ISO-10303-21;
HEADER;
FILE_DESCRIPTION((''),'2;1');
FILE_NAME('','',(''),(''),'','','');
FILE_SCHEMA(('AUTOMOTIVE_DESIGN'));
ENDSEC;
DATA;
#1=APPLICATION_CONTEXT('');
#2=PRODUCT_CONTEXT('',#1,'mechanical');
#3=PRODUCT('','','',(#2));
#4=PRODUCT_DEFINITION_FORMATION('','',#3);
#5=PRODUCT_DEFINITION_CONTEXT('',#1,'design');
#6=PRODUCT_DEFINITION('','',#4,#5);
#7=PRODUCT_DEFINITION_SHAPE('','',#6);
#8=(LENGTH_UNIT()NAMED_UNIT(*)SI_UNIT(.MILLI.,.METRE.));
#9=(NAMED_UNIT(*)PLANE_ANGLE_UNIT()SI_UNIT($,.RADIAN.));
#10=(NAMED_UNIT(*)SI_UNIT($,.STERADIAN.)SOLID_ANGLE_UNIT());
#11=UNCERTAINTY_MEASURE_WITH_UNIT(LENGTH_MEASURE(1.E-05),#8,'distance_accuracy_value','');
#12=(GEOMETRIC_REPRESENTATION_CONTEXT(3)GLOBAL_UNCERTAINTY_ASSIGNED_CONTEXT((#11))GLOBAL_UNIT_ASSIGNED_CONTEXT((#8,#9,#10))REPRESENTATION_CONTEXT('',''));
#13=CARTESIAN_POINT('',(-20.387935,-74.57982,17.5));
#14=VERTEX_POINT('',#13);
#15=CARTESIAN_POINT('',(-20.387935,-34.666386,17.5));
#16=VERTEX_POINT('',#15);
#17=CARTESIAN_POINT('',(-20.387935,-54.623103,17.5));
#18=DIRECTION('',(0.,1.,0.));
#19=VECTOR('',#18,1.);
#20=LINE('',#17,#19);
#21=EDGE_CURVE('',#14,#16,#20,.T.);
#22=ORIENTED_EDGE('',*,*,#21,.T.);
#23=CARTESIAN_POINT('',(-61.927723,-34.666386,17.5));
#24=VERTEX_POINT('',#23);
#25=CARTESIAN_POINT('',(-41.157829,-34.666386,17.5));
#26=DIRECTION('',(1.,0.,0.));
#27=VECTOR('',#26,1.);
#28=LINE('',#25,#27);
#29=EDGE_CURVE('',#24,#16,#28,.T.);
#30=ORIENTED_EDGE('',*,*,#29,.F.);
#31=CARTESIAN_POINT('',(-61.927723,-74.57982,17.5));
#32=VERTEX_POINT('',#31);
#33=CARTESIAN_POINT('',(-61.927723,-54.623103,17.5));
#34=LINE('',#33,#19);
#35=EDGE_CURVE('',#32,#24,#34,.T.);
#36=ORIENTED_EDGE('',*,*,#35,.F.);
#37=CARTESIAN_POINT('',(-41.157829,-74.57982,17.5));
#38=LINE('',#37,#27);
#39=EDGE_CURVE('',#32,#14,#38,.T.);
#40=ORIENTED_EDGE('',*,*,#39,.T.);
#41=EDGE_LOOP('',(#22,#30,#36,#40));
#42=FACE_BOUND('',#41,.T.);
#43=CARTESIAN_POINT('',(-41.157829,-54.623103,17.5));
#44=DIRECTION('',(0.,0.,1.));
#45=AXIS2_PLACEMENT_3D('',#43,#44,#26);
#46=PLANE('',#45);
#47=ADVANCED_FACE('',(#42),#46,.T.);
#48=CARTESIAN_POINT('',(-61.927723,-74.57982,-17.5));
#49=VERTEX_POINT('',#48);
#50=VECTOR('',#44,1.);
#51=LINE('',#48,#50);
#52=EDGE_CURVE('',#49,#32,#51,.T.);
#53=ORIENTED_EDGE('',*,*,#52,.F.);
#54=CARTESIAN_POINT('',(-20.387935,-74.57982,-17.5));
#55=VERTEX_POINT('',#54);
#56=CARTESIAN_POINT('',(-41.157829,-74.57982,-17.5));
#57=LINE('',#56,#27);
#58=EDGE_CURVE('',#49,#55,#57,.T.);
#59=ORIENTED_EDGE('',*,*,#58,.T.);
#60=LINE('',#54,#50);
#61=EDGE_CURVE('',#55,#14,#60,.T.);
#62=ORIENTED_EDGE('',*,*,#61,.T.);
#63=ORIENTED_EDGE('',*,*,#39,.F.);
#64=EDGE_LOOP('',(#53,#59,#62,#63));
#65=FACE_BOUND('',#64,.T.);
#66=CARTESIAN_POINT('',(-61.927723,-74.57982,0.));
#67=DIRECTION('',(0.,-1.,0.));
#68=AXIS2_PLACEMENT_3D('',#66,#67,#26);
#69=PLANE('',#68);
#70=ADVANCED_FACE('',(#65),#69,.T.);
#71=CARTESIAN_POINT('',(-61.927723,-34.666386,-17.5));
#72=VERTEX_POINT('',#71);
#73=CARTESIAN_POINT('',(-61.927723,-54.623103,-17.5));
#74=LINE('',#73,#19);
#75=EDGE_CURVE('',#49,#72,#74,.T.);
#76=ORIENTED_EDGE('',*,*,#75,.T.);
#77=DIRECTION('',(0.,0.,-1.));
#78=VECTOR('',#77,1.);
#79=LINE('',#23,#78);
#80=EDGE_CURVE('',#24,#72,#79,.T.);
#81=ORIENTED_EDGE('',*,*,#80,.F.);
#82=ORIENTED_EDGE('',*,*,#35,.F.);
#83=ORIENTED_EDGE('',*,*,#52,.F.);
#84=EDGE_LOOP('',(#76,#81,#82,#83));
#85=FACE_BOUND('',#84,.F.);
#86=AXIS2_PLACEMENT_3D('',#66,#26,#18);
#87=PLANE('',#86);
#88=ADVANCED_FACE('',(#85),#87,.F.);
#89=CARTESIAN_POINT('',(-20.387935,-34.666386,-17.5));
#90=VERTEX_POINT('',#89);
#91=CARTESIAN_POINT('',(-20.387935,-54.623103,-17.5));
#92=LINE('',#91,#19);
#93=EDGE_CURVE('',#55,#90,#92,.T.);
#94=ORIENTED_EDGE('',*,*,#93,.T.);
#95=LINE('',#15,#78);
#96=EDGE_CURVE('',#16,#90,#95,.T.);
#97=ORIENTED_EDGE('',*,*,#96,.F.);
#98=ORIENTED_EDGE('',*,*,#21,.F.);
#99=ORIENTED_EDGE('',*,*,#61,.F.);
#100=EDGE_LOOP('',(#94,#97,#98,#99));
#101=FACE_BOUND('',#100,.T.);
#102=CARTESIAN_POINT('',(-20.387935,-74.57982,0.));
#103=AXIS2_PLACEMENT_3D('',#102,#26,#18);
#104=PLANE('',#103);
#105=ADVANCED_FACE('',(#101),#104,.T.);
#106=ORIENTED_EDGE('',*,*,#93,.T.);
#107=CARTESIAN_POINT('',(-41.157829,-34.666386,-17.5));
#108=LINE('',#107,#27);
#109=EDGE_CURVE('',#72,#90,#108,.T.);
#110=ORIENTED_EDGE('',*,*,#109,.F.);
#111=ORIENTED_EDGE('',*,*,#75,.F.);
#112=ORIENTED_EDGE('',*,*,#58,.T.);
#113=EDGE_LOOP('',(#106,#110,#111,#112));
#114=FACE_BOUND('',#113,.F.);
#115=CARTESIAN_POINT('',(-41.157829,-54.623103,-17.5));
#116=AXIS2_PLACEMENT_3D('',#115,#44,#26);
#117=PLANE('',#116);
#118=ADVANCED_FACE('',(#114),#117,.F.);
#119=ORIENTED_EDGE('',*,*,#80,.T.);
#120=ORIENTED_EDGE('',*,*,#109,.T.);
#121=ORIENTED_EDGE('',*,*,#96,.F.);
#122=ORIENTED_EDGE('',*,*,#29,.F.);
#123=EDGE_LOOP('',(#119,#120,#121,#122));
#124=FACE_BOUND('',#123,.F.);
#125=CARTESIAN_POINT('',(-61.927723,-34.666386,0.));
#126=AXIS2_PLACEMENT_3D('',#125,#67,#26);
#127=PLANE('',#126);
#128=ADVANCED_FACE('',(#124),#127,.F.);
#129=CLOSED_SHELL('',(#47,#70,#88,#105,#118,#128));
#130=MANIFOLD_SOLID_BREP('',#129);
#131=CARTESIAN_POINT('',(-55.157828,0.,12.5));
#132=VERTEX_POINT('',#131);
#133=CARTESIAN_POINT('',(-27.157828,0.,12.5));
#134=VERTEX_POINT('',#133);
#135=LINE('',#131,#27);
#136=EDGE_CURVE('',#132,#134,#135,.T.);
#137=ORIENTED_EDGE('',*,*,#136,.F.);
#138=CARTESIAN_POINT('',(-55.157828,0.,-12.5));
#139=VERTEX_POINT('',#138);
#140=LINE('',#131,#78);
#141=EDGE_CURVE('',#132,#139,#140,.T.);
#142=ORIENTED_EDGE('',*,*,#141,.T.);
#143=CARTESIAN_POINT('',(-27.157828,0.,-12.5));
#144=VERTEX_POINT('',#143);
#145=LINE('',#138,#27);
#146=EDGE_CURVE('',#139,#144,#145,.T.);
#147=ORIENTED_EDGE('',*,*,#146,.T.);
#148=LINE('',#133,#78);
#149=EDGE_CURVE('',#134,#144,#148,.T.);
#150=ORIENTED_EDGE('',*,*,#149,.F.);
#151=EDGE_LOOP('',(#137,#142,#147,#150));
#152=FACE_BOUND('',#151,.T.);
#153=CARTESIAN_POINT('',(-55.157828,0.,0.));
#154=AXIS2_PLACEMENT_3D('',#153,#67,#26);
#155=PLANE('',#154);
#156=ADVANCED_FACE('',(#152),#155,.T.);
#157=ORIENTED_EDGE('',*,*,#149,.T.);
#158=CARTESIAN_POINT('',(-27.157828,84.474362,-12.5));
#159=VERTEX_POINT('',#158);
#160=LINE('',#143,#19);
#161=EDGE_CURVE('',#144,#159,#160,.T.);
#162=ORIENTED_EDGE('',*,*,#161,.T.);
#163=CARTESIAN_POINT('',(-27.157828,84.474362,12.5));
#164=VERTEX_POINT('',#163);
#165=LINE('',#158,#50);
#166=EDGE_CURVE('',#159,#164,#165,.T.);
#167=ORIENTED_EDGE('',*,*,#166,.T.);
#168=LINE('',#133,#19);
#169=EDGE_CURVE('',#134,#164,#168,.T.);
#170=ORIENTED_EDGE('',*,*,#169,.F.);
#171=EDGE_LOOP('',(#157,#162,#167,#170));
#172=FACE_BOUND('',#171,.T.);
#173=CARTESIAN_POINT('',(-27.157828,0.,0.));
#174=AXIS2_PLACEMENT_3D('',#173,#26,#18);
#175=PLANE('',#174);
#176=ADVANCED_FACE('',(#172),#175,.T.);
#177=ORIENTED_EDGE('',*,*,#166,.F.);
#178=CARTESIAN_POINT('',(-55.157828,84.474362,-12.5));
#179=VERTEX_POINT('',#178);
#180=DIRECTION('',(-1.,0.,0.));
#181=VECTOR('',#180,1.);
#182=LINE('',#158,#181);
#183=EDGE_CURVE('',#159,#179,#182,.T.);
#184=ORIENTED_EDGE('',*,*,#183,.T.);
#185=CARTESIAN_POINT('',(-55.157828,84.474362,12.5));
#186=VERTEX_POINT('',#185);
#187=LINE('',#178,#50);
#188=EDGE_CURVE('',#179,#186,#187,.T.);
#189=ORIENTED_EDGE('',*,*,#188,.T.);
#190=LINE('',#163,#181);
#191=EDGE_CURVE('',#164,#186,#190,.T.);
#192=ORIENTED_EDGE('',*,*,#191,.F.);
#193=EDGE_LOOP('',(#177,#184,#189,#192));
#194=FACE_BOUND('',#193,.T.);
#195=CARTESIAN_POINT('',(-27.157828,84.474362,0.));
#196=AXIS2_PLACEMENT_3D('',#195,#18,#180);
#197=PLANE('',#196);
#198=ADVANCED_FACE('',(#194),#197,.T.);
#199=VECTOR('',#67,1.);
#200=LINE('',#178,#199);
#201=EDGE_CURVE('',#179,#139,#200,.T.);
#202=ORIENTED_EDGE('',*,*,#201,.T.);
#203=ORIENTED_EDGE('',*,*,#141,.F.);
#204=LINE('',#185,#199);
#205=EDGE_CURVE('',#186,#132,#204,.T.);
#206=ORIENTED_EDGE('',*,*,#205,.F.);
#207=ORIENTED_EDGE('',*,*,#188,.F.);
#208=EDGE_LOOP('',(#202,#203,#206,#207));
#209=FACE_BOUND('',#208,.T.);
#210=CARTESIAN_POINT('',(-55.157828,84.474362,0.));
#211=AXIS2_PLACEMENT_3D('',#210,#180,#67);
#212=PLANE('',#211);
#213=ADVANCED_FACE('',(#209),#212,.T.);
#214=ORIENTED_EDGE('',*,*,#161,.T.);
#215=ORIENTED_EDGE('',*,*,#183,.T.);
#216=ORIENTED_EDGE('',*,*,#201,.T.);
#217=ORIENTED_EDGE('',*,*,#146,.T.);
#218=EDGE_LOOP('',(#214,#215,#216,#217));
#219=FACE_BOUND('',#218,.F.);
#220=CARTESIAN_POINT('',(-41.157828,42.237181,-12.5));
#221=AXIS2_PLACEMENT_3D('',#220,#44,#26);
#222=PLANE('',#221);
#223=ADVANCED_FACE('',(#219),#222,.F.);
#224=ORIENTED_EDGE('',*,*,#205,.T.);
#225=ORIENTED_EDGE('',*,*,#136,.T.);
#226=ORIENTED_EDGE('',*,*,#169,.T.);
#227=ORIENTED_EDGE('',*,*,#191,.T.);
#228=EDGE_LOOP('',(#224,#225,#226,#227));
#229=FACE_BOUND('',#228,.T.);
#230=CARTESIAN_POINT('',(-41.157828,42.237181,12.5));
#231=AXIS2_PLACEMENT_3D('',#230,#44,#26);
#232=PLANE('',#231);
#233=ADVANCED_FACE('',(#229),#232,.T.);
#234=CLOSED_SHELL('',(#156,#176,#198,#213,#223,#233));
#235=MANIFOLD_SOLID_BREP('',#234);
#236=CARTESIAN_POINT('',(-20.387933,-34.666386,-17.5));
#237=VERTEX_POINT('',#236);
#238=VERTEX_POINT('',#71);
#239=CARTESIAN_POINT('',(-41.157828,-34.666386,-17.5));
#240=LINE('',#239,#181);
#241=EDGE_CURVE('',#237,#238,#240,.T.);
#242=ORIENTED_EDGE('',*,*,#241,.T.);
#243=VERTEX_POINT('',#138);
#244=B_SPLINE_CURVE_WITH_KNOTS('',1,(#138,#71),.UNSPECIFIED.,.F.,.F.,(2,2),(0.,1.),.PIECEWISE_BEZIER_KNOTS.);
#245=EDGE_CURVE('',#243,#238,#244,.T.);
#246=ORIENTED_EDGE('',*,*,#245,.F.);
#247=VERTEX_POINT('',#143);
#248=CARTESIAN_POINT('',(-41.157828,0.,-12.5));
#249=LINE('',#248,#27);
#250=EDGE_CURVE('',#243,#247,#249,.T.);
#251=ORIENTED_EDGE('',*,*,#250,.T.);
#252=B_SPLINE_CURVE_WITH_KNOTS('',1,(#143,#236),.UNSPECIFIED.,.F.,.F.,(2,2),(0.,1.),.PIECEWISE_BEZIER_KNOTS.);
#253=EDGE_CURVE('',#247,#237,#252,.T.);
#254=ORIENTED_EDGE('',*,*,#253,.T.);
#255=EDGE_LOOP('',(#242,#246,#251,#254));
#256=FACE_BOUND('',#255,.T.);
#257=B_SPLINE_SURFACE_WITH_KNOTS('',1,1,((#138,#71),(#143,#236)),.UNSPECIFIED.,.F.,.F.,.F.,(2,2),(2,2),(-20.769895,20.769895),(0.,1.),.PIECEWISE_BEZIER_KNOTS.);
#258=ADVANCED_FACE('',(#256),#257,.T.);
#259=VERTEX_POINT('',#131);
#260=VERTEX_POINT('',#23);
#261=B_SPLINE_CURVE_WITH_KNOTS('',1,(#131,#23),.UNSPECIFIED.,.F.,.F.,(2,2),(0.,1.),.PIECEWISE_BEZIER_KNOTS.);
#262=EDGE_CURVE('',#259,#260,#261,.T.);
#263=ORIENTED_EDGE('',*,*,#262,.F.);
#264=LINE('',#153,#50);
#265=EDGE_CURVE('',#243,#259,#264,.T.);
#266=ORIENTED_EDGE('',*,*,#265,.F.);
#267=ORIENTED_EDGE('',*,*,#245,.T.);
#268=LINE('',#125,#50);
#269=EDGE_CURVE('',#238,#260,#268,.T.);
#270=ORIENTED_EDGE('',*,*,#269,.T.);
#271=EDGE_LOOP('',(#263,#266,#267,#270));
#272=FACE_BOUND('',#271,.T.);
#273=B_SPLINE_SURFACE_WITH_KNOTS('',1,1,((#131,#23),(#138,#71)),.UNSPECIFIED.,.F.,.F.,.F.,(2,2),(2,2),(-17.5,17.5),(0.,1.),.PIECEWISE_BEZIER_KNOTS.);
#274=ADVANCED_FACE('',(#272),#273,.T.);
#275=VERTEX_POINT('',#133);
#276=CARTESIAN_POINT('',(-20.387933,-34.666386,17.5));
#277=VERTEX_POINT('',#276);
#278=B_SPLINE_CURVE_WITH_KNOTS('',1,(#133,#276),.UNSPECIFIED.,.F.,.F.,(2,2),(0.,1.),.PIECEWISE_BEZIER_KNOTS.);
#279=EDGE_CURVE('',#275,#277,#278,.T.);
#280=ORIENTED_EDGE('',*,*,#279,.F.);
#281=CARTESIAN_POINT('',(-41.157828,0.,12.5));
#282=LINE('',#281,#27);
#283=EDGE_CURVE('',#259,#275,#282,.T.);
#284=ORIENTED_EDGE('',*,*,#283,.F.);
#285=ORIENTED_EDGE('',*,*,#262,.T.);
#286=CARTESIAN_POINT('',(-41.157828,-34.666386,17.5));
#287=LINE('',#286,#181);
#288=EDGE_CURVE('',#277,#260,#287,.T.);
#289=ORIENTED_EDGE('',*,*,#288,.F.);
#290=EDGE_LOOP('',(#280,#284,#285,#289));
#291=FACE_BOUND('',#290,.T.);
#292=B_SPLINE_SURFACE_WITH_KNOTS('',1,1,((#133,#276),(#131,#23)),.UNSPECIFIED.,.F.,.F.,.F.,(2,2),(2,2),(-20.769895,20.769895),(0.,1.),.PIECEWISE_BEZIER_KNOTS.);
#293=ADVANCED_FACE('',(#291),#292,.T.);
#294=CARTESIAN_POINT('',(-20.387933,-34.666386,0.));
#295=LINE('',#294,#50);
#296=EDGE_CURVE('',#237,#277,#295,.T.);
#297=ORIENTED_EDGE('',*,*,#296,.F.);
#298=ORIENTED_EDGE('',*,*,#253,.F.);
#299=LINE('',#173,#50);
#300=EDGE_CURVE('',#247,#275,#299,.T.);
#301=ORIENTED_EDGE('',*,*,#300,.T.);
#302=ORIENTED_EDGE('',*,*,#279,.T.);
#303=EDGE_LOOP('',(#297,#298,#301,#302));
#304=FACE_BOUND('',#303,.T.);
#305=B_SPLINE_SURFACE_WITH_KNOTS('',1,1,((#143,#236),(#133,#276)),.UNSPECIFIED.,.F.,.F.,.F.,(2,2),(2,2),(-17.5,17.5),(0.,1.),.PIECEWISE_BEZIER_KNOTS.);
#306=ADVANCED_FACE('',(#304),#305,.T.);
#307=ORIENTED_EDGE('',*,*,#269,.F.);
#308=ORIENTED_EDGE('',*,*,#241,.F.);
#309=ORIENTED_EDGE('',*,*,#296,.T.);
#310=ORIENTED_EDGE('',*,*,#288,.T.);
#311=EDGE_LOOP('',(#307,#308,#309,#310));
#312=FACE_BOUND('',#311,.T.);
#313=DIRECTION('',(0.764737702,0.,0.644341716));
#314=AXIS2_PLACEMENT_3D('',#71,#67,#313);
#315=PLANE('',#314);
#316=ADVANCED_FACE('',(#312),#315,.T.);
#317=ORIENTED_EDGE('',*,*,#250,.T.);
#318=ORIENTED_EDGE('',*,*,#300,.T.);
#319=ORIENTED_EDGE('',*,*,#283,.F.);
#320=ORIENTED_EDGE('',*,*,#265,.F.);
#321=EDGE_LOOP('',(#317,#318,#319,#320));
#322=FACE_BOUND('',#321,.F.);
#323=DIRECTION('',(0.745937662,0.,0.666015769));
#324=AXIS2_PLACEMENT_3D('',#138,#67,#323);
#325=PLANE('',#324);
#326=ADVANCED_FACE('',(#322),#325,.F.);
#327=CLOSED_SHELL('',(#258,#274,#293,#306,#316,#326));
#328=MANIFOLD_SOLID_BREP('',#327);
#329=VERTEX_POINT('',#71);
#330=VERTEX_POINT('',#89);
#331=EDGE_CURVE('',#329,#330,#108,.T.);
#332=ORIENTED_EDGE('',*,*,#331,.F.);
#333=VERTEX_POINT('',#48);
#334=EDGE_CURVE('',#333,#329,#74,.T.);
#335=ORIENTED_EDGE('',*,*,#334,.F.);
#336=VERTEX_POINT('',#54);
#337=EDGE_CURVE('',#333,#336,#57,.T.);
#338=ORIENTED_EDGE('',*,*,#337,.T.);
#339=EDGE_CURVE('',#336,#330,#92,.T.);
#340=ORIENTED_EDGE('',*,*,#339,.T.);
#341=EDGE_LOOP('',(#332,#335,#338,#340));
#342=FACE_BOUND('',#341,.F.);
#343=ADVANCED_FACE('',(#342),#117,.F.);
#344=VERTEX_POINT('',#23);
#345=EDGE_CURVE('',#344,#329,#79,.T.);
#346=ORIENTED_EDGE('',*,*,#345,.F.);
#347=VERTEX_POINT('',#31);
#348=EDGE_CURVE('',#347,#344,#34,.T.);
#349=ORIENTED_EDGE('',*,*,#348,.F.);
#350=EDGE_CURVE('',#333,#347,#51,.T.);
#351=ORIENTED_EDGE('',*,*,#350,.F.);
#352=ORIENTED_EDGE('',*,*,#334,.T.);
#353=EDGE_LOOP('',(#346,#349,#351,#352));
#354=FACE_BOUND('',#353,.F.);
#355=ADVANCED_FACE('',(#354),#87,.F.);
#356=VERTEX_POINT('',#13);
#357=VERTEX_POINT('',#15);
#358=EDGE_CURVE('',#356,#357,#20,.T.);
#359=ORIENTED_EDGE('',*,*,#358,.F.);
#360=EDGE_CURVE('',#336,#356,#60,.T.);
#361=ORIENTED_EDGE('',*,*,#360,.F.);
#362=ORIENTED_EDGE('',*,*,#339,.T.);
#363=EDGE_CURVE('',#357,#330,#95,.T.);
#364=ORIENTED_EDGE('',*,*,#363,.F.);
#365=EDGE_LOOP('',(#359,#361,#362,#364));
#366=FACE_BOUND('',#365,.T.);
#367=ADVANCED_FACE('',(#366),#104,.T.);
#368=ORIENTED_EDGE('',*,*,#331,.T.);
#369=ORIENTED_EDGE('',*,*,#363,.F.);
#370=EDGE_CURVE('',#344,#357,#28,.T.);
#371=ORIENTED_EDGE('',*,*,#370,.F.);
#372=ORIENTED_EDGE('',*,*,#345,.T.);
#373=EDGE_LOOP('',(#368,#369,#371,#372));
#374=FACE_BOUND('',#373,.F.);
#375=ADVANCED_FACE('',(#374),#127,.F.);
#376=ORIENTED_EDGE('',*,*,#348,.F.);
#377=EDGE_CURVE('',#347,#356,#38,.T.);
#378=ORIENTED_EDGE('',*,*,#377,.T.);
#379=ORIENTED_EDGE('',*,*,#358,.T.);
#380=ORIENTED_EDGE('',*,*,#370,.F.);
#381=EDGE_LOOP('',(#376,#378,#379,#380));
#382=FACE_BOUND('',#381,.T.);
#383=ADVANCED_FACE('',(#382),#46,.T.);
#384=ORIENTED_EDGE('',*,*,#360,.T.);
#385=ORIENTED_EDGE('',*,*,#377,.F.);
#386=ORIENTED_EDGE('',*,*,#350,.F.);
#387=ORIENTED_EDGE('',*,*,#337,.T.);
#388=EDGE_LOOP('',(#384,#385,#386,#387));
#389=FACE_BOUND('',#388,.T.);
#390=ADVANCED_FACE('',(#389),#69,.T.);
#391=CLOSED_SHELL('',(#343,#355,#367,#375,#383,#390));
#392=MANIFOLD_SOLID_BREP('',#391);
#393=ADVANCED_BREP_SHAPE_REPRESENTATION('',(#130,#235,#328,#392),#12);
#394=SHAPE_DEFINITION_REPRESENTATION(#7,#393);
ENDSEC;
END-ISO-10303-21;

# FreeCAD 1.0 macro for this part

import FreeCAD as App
import Part
import Sketcher

V = App.Vector

doc = App.newDocument("Part")
body = doc.addObject("PartDesign::Body", "Body")

sketch1 = body.newObject("Sketcher::SketchObject", "Sketch")
sketch1.AttachmentSupport = (doc.getObject("XY_Plane"), [""])
sketch1.MapMode = "FlatFace"
sketch1.addGeometry([
    Part.LineSegment(V(-27.157828, 0, 0), V(-27.157828, 84.474362, 0)),
    Part.LineSegment(V(-27.157828, 84.474362, 0), V(-55.157828, 84.474362, 0)),
    Part.LineSegment(V(-55.157828, 84.474362, 0), V(-55.157828, 0, 0)),
    Part.LineSegment(V(-55.157828, 0, 0), V(-27.157828, 0, 0)),
], False)
sketch1.addConstraint([
    Sketcher.Constraint("Coincident", 0, 2, 1, 1),
    Sketcher.Constraint("Coincident", 1, 2, 2, 1),
    Sketcher.Constraint("Coincident", 2, 2, 3, 1),
    Sketcher.Constraint("Coincident", 3, 2, 0, 1),
    Sketcher.Constraint("Vertical", 0),
    Sketcher.Constraint("Horizontal", 1),
    Sketcher.Constraint("Vertical", 2),
    Sketcher.Constraint("Horizontal", 3),
    Sketcher.Constraint("PointOnObject", 2, 2, -1),
    Sketcher.Constraint("DistanceX", 1, 2, 1, 1, 28.0),
    Sketcher.Constraint("DistanceY", 0, 1, 0, 2, 84.474362),
    Sketcher.Constraint("DistanceX", 1, 2, -1, 1, 55.157828),
])
pad1 = body.newObject("PartDesign::Pad", "Pad")
pad1.Profile = sketch1
pad1.Length = 25
pad1.Midplane = True
body2 = doc.addObject("PartDesign::Body", "Body001")

sketch2 = body2.newObject("Sketcher::SketchObject", "Sketch001")
sketch2.AttachmentSupport = (doc.getObject("XY_Plane001"), [""])
sketch2.MapMode = "FlatFace"
sketch2.addGeometry([
    Part.LineSegment(V(-61.927723, -34.666386, 0), V(-61.927723, -74.57982, 0)),
    Part.LineSegment(V(-61.927723, -74.57982, 0), V(-20.387935, -74.57982, 0)),
    Part.LineSegment(V(-20.387935, -74.57982, 0), V(-20.387935, -34.666386, 0)),
    Part.LineSegment(V(-20.387935, -34.666386, 0), V(-61.927723, -34.666386, 0)),
], False)
sketch2.addConstraint([
    Sketcher.Constraint("Coincident", 0, 2, 1, 1),
    Sketcher.Constraint("Coincident", 1, 2, 2, 1),
    Sketcher.Constraint("Coincident", 2, 2, 3, 1),
    Sketcher.Constraint("Coincident", 3, 2, 0, 1),
    Sketcher.Constraint("Vertical", 0),
    Sketcher.Constraint("Horizontal", 1),
    Sketcher.Constraint("Vertical", 2),
    Sketcher.Constraint("Horizontal", 3),
    Sketcher.Constraint("DistanceX", 1, 1, 1, 2, 41.539789),
    Sketcher.Constraint("DistanceY", 0, 2, 0, 1, 39.913434),
    Sketcher.Constraint("DistanceY", 0, 2, -1, 1, 74.57982),
    Sketcher.Constraint("DistanceX", 0, 2, -1, 1, 61.927723),
])
pad2 = body2.newObject("PartDesign::Pad", "Pad001")
pad2.Profile = sketch2
pad2.Length = 35
pad2.Midplane = True
body3 = doc.addObject("PartDesign::Body", "Body002")

sketch3 = body3.newObject("Sketcher::SketchObject", "Sketch002")
sketch3.AttachmentSupport = (doc.getObject("XY_Plane002"), [""])
sketch3.MapMode = "FlatFace"
sketch3.addGeometry([
    Part.LineSegment(V(-61.927723, -34.666386, 0), V(-61.927723, -74.57982, 0)),
    Part.LineSegment(V(-61.927723, -74.57982, 0), V(-20.387935, -74.57982, 0)),
    Part.LineSegment(V(-20.387935, -74.57982, 0), V(-20.387935, -34.666386, 0)),
    Part.LineSegment(V(-20.387935, -34.666386, 0), V(-61.927723, -34.666386, 0)),
], False)
sketch3.addConstraint([
    Sketcher.Constraint("Coincident", 0, 2, 1, 1),
    Sketcher.Constraint("Coincident", 1, 2, 2, 1),
    Sketcher.Constraint("Coincident", 2, 2, 3, 1),
    Sketcher.Constraint("Coincident", 3, 2, 0, 1),
    Sketcher.Constraint("Vertical", 0),
    Sketcher.Constraint("Horizontal", 1),
    Sketcher.Constraint("Vertical", 2),
    Sketcher.Constraint("Horizontal", 3),
    Sketcher.Constraint("DistanceX", 1, 1, 1, 2, 41.539789),
    Sketcher.Constraint("DistanceY", 0, 2, 0, 1, 39.913434),
    Sketcher.Constraint("DistanceY", 0, 2, -1, 1, 74.57982),
    Sketcher.Constraint("DistanceX", 0, 2, -1, 1, 61.927723),
])
pad3 = body3.newObject("PartDesign::Pad", "Pad002")
pad3.Profile = sketch3
pad3.Length = 35
pad3.Midplane = True
body4 = doc.addObject("PartDesign::Body", "Body003")

sketch4 = body4.newObject("Sketcher::SketchObject", "Sketch003")
sketch4.AttachmentSupport = (doc.getObject("XZ_Plane003"), [""])
sketch4.MapMode = "FlatFace"
sketch4.addGeometry([
    Part.LineSegment(V(-55.157828, 12.5, 0), V(-55.157828, -12.5, 0)),
    Part.LineSegment(V(-55.157828, -12.5, 0), V(-27.157828, -12.5, 0)),
    Part.LineSegment(V(-27.157828, -12.5, 0), V(-27.157828, 12.5, 0)),
    Part.LineSegment(V(-27.157828, 12.5, 0), V(-55.157828, 12.5, 0)),
], False)
sketch4.addConstraint([
    Sketcher.Constraint("Coincident", 0, 2, 1, 1),
    Sketcher.Constraint("Coincident", 1, 2, 2, 1),
    Sketcher.Constraint("Coincident", 2, 2, 3, 1),
    Sketcher.Constraint("Coincident", 3, 2, 0, 1),
    Sketcher.Constraint("Vertical", 0),
    Sketcher.Constraint("Horizontal", 1),
    Sketcher.Constraint("Vertical", 2),
    Sketcher.Constraint("Horizontal", 3),
    Sketcher.Constraint("DistanceX", 1, 1, 1, 2, 28.0),
    Sketcher.Constraint("DistanceY", 0, 2, 0, 1, 25.0),
    Sketcher.Constraint("DistanceY", 0, 2, -1, 1, 12.5),
    Sketcher.Constraint("DistanceX", 0, 2, -1, 1, 55.157828),
])

sketch5 = body4.newObject("Sketcher::SketchObject", "Sketch004")
sketch5.AttachmentSupport = (doc.getObject("XZ_Plane003"), [""])
sketch5.MapMode = "FlatFace"
sketch5.AttachmentOffset = App.Placement(V(0, 0, 34.666386), App.Rotation())
sketch5.addGeometry([
    Part.LineSegment(V(-20.387933, 17.5, 0), V(-20.387933, -17.5, 0)),
    Part.LineSegment(V(-20.387933, -17.5, 0), V(-61.927723, -17.5, 0)),
    Part.LineSegment(V(-61.927723, -17.5, 0), V(-61.927723, 17.5, 0)),
    Part.LineSegment(V(-61.927723, 17.5, 0), V(-20.387933, 17.5, 0)),
], False)
sketch5.addConstraint([
    Sketcher.Constraint("Coincident", 0, 2, 1, 1),
    Sketcher.Constraint("Coincident", 1, 2, 2, 1),
    Sketcher.Constraint("Coincident", 2, 2, 3, 1),
    Sketcher.Constraint("Coincident", 3, 2, 0, 1),
    Sketcher.Constraint("Vertical", 0),
    Sketcher.Constraint("Horizontal", 1),
    Sketcher.Constraint("Vertical", 2),
    Sketcher.Constraint("Horizontal", 3),
    Sketcher.Constraint("DistanceY", 0, 2, 0, 1, 35.0),
    Sketcher.Constraint("DistanceY", 0, 2, -1, 1, 17.5),
    Sketcher.Constraint("DistanceX", 1, 2, 1, 1, 41.53979),
    Sketcher.Constraint("DistanceX", 0, 2, -1, 1, 20.387933),
])

additiveloft = body4.newObject("PartDesign::AdditiveLoft", "AdditiveLoft")
additiveloft.Profile = sketch4
additiveloft.Sections = [sketch5]

doc.recompute()
